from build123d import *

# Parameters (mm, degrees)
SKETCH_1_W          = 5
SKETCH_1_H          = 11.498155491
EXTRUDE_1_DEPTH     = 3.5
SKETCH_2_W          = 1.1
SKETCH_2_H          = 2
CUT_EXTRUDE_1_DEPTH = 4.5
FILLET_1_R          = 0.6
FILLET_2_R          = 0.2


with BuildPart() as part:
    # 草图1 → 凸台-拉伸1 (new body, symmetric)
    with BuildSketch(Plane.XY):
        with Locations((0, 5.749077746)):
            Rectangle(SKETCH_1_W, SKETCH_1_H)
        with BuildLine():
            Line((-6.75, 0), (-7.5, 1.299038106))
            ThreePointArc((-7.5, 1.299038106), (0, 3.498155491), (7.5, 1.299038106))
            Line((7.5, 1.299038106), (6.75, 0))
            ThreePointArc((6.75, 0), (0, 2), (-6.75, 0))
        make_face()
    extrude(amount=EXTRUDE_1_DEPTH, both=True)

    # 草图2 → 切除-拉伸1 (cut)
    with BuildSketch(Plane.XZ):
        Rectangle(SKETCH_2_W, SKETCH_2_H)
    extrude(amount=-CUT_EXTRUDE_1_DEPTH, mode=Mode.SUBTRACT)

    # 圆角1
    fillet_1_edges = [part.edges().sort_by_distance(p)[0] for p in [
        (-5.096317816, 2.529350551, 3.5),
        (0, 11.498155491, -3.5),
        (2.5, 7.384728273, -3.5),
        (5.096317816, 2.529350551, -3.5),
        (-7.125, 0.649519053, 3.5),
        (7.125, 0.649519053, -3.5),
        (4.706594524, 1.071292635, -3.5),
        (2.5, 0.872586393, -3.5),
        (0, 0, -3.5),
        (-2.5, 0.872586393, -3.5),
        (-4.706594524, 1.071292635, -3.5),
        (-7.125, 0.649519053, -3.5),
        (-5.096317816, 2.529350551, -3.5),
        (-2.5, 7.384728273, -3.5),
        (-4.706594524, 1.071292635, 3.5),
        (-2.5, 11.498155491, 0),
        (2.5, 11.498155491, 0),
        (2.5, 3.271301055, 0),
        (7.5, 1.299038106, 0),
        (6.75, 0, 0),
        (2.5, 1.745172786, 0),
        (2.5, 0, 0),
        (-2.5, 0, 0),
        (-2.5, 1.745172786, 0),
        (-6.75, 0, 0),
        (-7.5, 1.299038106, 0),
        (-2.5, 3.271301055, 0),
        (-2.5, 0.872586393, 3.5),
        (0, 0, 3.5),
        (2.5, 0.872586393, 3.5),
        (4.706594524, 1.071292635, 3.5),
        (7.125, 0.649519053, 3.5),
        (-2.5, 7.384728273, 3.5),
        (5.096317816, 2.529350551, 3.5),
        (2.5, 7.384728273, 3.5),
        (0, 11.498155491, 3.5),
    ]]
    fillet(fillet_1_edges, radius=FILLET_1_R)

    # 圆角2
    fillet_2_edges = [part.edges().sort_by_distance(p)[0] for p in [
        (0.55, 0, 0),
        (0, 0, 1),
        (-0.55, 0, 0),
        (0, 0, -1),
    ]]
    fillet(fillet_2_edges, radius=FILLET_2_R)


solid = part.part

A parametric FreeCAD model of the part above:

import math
import FreeCAD as App
import Part
import Sketcher
Q = App.Units.Quantity


def edges_at(feature, points):
    """Names of the edges that pass closest to the given points."""
    edges = feature.Shape.Edges
    near = lambda p: min(range(len(edges)), key=lambda i: edges[i].distToShape(Part.Vertex(*p))[0])
    return sorted({f"Edge{near(p) + 1}" for p in points})


def add_polygon(sketch, points):
    """Adds a closed chain of lines whose ends are joined by coincident constraints."""
    first, n = sketch.GeometryCount, len(points)
    for a, b in zip(points, points[1:] + points[:1]):
        sketch.addGeometry(Part.LineSegment(App.Vector(*a, 0), App.Vector(*b, 0)), False)
    for i in range(n):
        sketch.addConstraint(Sketcher.Constraint("Coincident", first + i, 2, first + (i + 1) % n, 1))

doc = App.newDocument("Part")
body = doc.addObject("PartDesign::Body", "Body")

# Sketch on XY plane
sketch1 = doc.addObject("Sketcher::SketchObject", "Sketch")
body.addObject(sketch1)
sketch1.AttachmentSupport = (doc.XY_Plane, [""])
sketch1.MapMode = "FlatFace"
sketch1.addGeometry(Part.LineSegment(App.Vector(-2.5, 1.7, 0), App.Vector(-2.5, 0, 0)), False)
sketch1.addGeometry(Part.LineSegment(App.Vector(-2.5, 0, 0), App.Vector(2.5, 0, 0)), False)
sketch1.addGeometry(Part.LineSegment(App.Vector(2.5, 0, 0), App.Vector(2.5, 1.7, 0)), False)
sketch1.addGeometry(Part.ArcOfCircle(Part.Circle(App.Vector(0, -10.4, 0), App.Vector(0, 0, 1), 12.4), math.radians(57), math.radians(78)), False)
sketch1.addGeometry(Part.LineSegment(App.Vector(6.8, 0, 0), App.Vector(7.5, 1.3, 0)), False)
sketch1.addGeometry(Part.ArcOfCircle(Part.Circle(App.Vector(0, -10.4, 0), App.Vector(0, 0, 1), 13.9), math.radians(57), math.radians(80)), False)
sketch1.addGeometry(Part.LineSegment(App.Vector(2.5, 3.3, 0), App.Vector(2.5, 11.5, 0)), False)
sketch1.addGeometry(Part.LineSegment(App.Vector(2.5, 11.5, 0), App.Vector(-2.5, 11.5, 0)), False)
sketch1.addGeometry(Part.LineSegment(App.Vector(-2.5, 11.5, 0), App.Vector(-2.5, 3.3, 0)), False)
sketch1.addGeometry(Part.ArcOfCircle(Part.Circle(App.Vector(0, -10.4, 0), App.Vector(0, 0, 1), 13.9), math.radians(100), math.radians(123)), False)
sketch1.addGeometry(Part.LineSegment(App.Vector(-7.5, 1.3, 0), App.Vector(-6.8, 0, 0)), False)
sketch1.addGeometry(Part.ArcOfCircle(Part.Circle(App.Vector(0, -10.4, 0), App.Vector(0, 0, 1), 12.4), math.radians(102), math.radians(123)), False)
sketch1.addConstraint(Sketcher.Constraint("Coincident", 0, 2, 1, 1))
sketch1.addConstraint(Sketcher.Constraint("Coincident", 1, 2, 2, 1))
sketch1.addConstraint(Sketcher.Constraint("Coincident", 2, 2, 3, 2))
sketch1.addConstraint(Sketcher.Constraint("Coincident", 3, 1, 4, 1))
sketch1.addConstraint(Sketcher.Constraint("Coincident", 4, 2, 5, 1))
sketch1.addConstraint(Sketcher.Constraint("Coincident", 5, 2, 6, 1))
sketch1.addConstraint(Sketcher.Constraint("Coincident", 6, 2, 7, 1))
sketch1.addConstraint(Sketcher.Constraint("Coincident", 7, 2, 8, 1))
sketch1.addConstraint(Sketcher.Constraint("Coincident", 8, 2, 9, 1))
sketch1.addConstraint(Sketcher.Constraint("Coincident", 9, 2, 10, 1))
sketch1.addConstraint(Sketcher.Constraint("Coincident", 10, 2, 11, 2))
sketch1.addConstraint(Sketcher.Constraint("Coincident", 11, 1, 0, 1))
sketch1.addConstraint(Sketcher.Constraint("Vertical", 0))
sketch1.addConstraint(Sketcher.Constraint("Horizontal", 1))
sketch1.addConstraint(Sketcher.Constraint("Vertical", 2))
sketch1.addConstraint(Sketcher.Constraint("Vertical", 6))
sketch1.addConstraint(Sketcher.Constraint("Horizontal", 7))
sketch1.addConstraint(Sketcher.Constraint("Vertical", 8))
sketch1.addConstraint(Sketcher.Constraint("Coincident", 5, 3, 3, 3))
sketch1.addConstraint(Sketcher.Constraint("Coincident", 9, 3, 3, 3))
sketch1.addConstraint(Sketcher.Constraint("Coincident", 11, 3, 3, 3))
sketch1.addConstraint(Sketcher.Constraint("Equal", 5, 9))
sketch1.addConstraint(Sketcher.Constraint("Equal", 3, 11))
sketch1.addConstraint(Sketcher.Constraint("Symmetric", 0, 2, 1, 2, -1, 1))
sketch1.addConstraint(Sketcher.Constraint("Symmetric", 3, 1, 10, 2, -1, 1))
sketch1.addConstraint(Sketcher.Constraint("Symmetric", 5, 2, 8, 2, -2))
sketch1.addConstraint(Sketcher.Constraint("Horizontal", 4, 2, 9, 2))
sketch1.addConstraint(Sketcher.Constraint("Vertical", 2, 2, 5, 2))
sketch1.addConstraint(Sketcher.Constraint("DistanceX", 1, 1, 1, 2, 5.0))
sketch1.addConstraint(Sketcher.Constraint("Angle", 4, Q("60 deg")))
sketch1.addConstraint(Sketcher.Constraint("DistanceX", 2, 2, 4, 2, 5.0))
sketch1.addConstraint(Sketcher.Constraint("Distance", 4, 1.5))
sketch1.addConstraint(Sketcher.Constraint("Radius", 5, 13.88878))
sketch1.addConstraint(Sketcher.Constraint("DistanceY", 6, 1, 6, 2, 8.226854))
pad1 = doc.addObject("PartDesign::Pad", "Pad")
body.addObject(pad1)
pad1.Profile = sketch1
pad1.Length = 7
pad1.Midplane = True

# Sketch on XZ plane
sketch2 = doc.addObject("Sketcher::SketchObject", "Sketch001")
body.addObject(sketch2)
sketch2.AttachmentSupport = (doc.XZ_Plane, [""])
sketch2.MapMode = "FlatFace"
add_polygon(sketch2, [(-0.6, 1), (-0.6, -1), (0.6, -1), (0.6, 1)])  # lines 0-3
sketch2.addConstraint(Sketcher.Constraint("Vertical", 0))
sketch2.addConstraint(Sketcher.Constraint("Horizontal", 1))
sketch2.addConstraint(Sketcher.Constraint("Vertical", 2))
sketch2.addConstraint(Sketcher.Constraint("Horizontal", 3))
sketch2.addConstraint(Sketcher.Constraint("Symmetric", 0, 2, 2, 2, -1, 1))
sketch2.addConstraint(Sketcher.Constraint("DistanceY", 0, 2, 0, 1, 2.0))
sketch2.addConstraint(Sketcher.Constraint("DistanceX", 1, 1, 1, 2, 1.1))
pocket1 = doc.addObject("PartDesign::Pocket", "Pocket")
body.addObject(pocket1)
pocket1.Profile = sketch2
pocket1.Length = 4.5
doc.recompute()

fillet = doc.addObject("PartDesign::Fillet", "Fillet")
body.addObject(fillet)
fillet.Base = (pocket1, edges_at(pocket1, [
    (-5.096, 2.529, 3.5),
    (0, 11.498, -3.5),
    (2.5, 7.385, -3.5),
    (5.096, 2.529, -3.5),
    (-7.125, 0.65, 3.5),
    (7.125, 0.65, -3.5),
    (4.707, 1.071, -3.5),
    (2.5, 0.873, -3.5),
    (0, 0, -3.5),
    (-2.5, 0.873, -3.5),
    (-4.707, 1.071, -3.5),
    (-7.125, 0.65, -3.5),
    (-5.096, 2.529, -3.5),
    (-2.5, 7.385, -3.5),
    (-4.707, 1.071, 3.5),
    (-2.5, 11.498, 0),
    (2.5, 11.498, 0),
    (2.5, 3.271, 0),
    (7.5, 1.299, 0),
    (6.75, 0, 0),
    (2.5, 1.745, 0),
    (2.5, 0, 0),
    (-2.5, 0, 0),
    (-2.5, 1.745, 0),
    (-6.75, 0, 0),
    (-7.5, 1.299, 0),
    (-2.5, 3.271, 0),
    (-2.5, 0.873, 3.5),
    (0, 0, 3.5),
    (2.5, 0.873, 3.5),
    (4.707, 1.071, 3.5),
    (7.125, 0.65, 3.5),
    (-2.5, 7.385, 3.5),
    (5.096, 2.529, 3.5),
    (2.5, 7.385, 3.5),
    (0, 11.498, 3.5),
]))
fillet.Radius = 0.6
doc.recompute()

fillet2 = doc.addObject("PartDesign::Fillet", "Fillet001")
body.addObject(fillet2)
fillet2.Base = (fillet, edges_at(fillet, [
    (0.55, 0, 0),
    (0, 0, 1),
    (-0.55, 0, 0),
    (0, 0, -1),
]))
fillet2.Radius = 0.2

doc.recompute()
